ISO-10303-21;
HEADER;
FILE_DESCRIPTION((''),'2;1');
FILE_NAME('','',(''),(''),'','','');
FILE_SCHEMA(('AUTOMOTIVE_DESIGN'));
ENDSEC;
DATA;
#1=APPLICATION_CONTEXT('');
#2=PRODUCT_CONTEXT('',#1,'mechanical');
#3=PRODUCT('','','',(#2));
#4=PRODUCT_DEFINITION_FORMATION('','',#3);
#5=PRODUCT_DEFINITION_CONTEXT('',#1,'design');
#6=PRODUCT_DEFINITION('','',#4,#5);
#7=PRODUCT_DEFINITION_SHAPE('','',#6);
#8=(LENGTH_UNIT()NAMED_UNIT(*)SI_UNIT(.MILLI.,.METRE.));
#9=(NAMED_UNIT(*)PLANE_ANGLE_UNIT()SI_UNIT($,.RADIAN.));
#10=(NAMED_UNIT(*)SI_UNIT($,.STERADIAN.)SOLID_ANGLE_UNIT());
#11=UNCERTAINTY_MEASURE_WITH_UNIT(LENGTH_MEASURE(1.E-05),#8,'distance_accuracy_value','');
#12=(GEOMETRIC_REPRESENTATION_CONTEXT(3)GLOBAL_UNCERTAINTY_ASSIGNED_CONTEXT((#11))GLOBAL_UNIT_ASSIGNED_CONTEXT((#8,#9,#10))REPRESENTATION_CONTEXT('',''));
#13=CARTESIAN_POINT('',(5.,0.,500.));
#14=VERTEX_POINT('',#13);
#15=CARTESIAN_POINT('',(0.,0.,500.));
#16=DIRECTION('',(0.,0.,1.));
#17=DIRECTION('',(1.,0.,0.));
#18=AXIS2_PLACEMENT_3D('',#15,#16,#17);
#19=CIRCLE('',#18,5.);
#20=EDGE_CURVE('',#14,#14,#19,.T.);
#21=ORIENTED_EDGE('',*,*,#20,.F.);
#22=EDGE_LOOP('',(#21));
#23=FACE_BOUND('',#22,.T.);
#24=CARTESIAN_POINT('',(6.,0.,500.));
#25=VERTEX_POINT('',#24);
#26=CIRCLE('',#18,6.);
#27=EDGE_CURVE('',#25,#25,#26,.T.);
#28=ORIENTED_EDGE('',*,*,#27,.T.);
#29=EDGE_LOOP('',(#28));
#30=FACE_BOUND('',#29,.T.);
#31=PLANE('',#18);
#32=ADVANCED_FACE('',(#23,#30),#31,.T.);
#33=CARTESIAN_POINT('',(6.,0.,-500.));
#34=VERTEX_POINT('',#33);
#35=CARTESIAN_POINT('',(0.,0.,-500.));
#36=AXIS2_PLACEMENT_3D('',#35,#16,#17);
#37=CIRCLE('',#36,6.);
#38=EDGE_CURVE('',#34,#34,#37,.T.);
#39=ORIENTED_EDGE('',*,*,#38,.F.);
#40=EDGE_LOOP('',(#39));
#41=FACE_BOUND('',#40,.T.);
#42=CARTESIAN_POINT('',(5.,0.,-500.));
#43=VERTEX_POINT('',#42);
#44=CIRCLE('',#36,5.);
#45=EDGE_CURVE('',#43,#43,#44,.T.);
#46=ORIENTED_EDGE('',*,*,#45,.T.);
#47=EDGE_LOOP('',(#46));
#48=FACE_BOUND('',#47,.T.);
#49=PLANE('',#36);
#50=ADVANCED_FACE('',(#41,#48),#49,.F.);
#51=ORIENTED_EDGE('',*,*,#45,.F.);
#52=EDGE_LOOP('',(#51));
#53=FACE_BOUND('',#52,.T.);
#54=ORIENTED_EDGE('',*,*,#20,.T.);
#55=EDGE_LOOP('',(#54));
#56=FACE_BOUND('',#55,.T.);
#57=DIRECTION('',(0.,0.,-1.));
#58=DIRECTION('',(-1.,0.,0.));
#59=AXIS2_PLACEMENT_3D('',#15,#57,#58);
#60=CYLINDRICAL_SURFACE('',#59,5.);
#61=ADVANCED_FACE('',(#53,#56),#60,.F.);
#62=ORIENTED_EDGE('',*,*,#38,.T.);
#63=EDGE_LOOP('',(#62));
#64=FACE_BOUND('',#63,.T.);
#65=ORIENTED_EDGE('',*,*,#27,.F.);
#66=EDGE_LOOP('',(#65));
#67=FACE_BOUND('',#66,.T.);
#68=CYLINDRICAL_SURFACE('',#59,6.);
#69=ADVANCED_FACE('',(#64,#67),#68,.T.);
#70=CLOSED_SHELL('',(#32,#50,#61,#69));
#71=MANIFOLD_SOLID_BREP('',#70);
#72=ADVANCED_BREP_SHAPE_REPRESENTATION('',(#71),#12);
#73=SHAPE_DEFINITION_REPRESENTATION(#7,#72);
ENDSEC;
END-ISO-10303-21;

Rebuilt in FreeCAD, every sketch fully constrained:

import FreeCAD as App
import Part
import Sketcher
from FreeCAD import Vector

doc = App.newDocument("Part")
params = doc.addObject("Spreadsheet::Sheet", "Params")
for row, (alias, value) in enumerate([
    ("sketch1_diameter", "12 mm"),
    ("sketch1_diameter2", "10 mm"),
    ("pad1_length", "1000 mm"),
], start=1):
    params.set(f"A{row}", alias)
    params.set(f"B{row}", "=" + value)
    params.setAlias(f"B{row}", alias)

body = doc.addObject("PartDesign::Body", "Body")

# Sketch on XY plane
sketch1 = body.newObject("Sketcher::SketchObject", "Sketch")
sketch1.AttachmentSupport = (doc.getObject("XY_Plane"), [""])
sketch1.MapMode = "FlatFace"
sketch1.addGeometry([
    Part.Circle(Vector(0, 0, 0), Vector(0, 0, 1), 6),
    Part.Circle(Vector(0, 0, 0), Vector(0, 0, 1), 5),
], False)
sketch1.addConstraint([
    Sketcher.Constraint("Coincident", 0, 3, -1, 1),
    Sketcher.Constraint("Coincident", 1, 3, -1, 1),
    Sketcher.Constraint("Diameter", 0, 12.0),
    Sketcher.Constraint("Diameter", 1, 10.0),
])
sketch1.setExpression("Constraints[2]", "Params.sketch1_diameter")
sketch1.setExpression("Constraints[3]", "Params.sketch1_diameter2")
pad1 = body.newObject("PartDesign::Pad", "Pad")
pad1.Profile = sketch1
pad1.setExpression("Length", "Params.pad1_length")
pad1.Midplane = True

doc.recompute()
